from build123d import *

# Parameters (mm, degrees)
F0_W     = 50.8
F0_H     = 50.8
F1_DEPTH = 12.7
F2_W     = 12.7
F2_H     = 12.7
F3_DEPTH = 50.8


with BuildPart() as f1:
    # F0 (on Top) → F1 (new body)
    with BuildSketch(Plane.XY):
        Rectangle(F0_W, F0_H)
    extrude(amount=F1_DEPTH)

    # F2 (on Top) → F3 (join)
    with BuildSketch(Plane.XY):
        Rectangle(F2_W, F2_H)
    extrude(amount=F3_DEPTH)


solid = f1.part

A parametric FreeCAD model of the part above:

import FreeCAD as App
import Part
import Sketcher
from FreeCAD import Vector
Q = App.Units.Quantity


def add_polygon(sketch, points):
    """Adds a closed chain of lines whose ends are joined by coincident constraints."""
    first, n = sketch.GeometryCount, len(points)
    for a, b in zip(points, points[1:] + points[:1]):
        sketch.addGeometry(Part.LineSegment(App.Vector(*a, 0), App.Vector(*b, 0)), False)
    for i in range(n):
        sketch.addConstraint(Sketcher.Constraint("Coincident", first + i, 2, first + (i + 1) % n, 1))

doc = App.newDocument("Part")
body = doc.addObject("PartDesign::Body", "Body")

# Sketch on XY plane
sketch1 = doc.addObject("Sketcher::SketchObject", "Sketch")
body.addObject(sketch1)
sketch1.AttachmentSupport = (doc.XY_Plane, [""])
sketch1.MapMode = "FlatFace"
add_polygon(sketch1, [(-25, 25), (-25, -25), (25, -25), (25, 25)])  # lines 0-3
sketch1.addConstraint([
    Sketcher.Constraint("Vertical", 0),
    Sketcher.Constraint("Horizontal", 1),
    Sketcher.Constraint("Vertical", 2),
    Sketcher.Constraint("Horizontal", 3),
    Sketcher.Constraint("Symmetric", 0, 2, 2, 2, -1, 1),
    Sketcher.Constraint("Equal", 3, 0),
    Sketcher.Constraint("DistanceX", 1, 1, 1, 2, Q("2 in")),
])
pad1 = doc.addObject("PartDesign::Pad", "Pad")
body.addObject(pad1)
pad1.Profile = sketch1
pad1.Length = Q("0.5 in")

# Sketch on XY plane
sketch2 = doc.addObject("Sketcher::SketchObject", "Sketch001")
body.addObject(sketch2)
sketch2.AttachmentSupport = (doc.XY_Plane, [""])
sketch2.MapMode = "FlatFace"
add_polygon(sketch2, [(-6, 6), (-6, -6), (6, -6), (6, 6)])  # lines 0-3
sketch2.addConstraint([
    Sketcher.Constraint("Vertical", 0),
    Sketcher.Constraint("Horizontal", 1),
    Sketcher.Constraint("Vertical", 2),
    Sketcher.Constraint("Horizontal", 3),
    Sketcher.Constraint("Symmetric", 0, 2, 2, 2, -1, 1),
    Sketcher.Constraint("Equal", 3, 0),
    Sketcher.Constraint("DistanceX", 1, 1, 1, 2, Q("0.5 in")),
])
pad2 = doc.addObject("PartDesign::Pad", "Pad001")
body.addObject(pad2)
pad2.Profile = sketch2
pad2.Length = Q("2 in")

doc.recompute()
